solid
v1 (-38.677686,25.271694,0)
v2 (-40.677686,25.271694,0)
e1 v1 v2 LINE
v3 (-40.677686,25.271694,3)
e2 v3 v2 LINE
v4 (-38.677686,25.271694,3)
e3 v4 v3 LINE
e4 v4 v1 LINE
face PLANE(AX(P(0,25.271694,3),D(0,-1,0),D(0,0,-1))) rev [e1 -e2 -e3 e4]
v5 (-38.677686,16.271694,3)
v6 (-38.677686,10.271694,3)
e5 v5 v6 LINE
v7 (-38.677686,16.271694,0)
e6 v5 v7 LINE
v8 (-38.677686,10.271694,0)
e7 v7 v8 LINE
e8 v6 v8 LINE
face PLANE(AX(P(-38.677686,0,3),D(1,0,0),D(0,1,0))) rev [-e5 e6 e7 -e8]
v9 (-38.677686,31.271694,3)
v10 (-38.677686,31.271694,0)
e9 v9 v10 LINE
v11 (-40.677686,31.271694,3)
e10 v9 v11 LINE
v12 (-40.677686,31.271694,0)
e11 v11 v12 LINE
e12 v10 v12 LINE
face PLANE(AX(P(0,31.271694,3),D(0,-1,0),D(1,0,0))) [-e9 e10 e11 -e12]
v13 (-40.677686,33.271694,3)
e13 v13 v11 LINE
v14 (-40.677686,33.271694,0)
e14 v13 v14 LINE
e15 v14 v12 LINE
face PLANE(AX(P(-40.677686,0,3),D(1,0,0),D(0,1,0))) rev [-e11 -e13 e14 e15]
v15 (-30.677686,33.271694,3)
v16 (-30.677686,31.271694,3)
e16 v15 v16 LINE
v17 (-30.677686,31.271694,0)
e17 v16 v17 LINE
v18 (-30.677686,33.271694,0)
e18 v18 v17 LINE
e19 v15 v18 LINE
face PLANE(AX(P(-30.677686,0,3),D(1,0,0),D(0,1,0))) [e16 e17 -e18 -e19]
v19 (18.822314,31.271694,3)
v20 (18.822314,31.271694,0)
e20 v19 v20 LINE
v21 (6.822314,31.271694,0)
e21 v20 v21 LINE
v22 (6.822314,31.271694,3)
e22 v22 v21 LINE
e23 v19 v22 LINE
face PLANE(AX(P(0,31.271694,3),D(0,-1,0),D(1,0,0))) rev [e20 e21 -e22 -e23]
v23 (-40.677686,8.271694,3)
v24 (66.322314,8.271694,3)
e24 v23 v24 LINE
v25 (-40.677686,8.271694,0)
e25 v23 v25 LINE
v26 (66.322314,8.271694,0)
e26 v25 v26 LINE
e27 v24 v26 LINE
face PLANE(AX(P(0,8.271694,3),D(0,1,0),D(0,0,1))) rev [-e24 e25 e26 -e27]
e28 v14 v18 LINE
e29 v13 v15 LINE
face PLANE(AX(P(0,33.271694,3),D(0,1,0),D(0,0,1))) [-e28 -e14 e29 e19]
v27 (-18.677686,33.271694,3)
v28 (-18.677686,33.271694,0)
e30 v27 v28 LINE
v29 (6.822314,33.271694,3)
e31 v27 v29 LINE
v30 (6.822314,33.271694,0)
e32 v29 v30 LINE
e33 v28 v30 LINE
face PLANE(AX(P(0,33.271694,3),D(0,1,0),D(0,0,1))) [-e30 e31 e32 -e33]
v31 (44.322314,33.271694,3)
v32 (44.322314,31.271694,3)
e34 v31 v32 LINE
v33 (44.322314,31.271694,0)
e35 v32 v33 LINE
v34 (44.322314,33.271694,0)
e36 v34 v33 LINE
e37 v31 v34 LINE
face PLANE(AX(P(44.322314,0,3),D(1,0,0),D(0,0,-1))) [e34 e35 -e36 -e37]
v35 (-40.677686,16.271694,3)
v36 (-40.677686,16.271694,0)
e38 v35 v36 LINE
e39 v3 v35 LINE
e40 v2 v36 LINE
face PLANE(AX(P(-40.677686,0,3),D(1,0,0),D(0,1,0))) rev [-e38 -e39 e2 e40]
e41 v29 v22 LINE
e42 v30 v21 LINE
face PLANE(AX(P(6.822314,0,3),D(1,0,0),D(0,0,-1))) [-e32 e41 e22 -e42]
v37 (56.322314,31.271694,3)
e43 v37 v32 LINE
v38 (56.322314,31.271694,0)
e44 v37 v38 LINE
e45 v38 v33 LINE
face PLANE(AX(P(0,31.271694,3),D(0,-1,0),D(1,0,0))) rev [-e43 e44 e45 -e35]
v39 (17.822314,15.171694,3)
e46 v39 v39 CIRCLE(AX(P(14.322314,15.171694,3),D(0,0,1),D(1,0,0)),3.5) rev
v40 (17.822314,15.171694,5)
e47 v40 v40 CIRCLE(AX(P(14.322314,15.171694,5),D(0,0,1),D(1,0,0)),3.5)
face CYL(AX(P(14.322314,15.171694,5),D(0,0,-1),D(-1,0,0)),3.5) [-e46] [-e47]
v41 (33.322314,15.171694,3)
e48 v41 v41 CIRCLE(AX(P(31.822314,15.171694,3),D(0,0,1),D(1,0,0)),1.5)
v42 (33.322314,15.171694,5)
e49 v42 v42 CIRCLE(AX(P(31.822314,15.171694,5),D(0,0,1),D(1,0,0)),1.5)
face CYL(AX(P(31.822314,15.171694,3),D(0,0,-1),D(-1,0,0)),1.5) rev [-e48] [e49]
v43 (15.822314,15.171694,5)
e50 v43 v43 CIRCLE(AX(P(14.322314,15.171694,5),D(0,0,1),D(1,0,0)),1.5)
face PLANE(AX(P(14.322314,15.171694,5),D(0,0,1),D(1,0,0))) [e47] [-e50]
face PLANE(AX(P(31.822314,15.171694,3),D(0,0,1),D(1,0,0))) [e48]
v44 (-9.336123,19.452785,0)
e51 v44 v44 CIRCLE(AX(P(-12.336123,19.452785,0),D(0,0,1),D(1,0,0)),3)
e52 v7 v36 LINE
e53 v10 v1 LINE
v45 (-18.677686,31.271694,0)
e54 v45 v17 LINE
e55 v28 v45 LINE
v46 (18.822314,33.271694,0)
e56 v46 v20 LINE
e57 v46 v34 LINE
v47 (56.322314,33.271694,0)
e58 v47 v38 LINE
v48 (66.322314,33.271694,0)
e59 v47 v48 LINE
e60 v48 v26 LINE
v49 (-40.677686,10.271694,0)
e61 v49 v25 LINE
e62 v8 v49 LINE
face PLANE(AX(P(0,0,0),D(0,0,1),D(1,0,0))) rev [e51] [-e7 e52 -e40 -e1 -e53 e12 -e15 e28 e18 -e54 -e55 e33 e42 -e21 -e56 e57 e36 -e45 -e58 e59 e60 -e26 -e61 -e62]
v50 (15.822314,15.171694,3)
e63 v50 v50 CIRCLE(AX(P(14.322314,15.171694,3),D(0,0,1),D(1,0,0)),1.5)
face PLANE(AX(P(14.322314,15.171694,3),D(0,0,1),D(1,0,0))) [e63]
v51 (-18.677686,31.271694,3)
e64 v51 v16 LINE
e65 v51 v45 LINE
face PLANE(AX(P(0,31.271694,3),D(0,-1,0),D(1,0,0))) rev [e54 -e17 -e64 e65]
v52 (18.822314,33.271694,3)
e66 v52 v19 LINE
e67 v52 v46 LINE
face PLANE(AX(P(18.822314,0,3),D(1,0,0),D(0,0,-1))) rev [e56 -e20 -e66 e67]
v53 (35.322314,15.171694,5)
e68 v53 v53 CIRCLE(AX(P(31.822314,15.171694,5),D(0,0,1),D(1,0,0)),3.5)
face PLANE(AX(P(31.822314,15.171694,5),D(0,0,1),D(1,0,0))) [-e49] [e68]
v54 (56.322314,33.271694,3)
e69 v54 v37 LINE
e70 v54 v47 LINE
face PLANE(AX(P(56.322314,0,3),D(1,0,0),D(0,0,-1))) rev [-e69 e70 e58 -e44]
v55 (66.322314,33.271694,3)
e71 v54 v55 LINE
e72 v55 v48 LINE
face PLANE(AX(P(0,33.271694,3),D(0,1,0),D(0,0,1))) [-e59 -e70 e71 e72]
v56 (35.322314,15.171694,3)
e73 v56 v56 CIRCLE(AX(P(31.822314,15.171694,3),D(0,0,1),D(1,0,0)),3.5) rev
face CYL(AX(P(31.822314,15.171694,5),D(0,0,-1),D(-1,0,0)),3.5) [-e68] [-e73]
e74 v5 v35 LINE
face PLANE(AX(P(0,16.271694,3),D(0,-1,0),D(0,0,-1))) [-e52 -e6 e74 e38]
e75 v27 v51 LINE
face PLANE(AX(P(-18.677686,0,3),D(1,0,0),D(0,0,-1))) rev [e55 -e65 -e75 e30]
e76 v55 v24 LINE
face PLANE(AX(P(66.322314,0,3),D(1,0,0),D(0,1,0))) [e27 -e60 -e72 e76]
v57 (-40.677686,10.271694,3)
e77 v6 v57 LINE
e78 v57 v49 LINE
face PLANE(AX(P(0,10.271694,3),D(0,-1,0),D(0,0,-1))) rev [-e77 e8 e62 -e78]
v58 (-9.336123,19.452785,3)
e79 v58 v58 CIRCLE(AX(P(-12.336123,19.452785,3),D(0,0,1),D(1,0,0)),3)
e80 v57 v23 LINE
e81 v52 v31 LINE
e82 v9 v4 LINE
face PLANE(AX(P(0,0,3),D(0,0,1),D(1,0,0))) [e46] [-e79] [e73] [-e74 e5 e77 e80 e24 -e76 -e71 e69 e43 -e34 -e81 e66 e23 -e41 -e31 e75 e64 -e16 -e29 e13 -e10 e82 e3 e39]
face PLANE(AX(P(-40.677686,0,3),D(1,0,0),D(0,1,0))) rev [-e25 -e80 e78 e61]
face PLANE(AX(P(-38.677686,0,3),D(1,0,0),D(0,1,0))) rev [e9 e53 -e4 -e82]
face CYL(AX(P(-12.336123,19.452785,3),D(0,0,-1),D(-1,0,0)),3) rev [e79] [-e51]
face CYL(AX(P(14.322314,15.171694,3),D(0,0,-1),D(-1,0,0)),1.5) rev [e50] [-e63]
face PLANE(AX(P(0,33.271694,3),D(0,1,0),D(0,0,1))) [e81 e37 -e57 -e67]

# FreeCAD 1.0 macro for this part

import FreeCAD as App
import Part
import Sketcher
from FreeCAD import Vector


def add_polygon(sketch, points):
    """Adds a closed chain of lines whose ends are joined by coincident constraints."""
    first, n = sketch.GeometryCount, len(points)
    for a, b in zip(points, points[1:] + points[:1]):
        sketch.addGeometry(Part.LineSegment(App.Vector(*a, 0), App.Vector(*b, 0)), False)
    for i in range(n):
        sketch.addConstraint(Sketcher.Constraint("Coincident", first + i, 2, first + (i + 1) % n, 1))

doc = App.newDocument("Part")
body = doc.addObject("PartDesign::Body", "Body")

sketch1 = body.newObject("Sketcher::SketchObject", "Sketch")
sketch1.AttachmentSupport = (doc.getObject("XY_Plane"), [""])
sketch1.MapMode = "FlatFace"
add_polygon(sketch1, [(-30.7, 33.3), (-40.7, 33.3), (-40.7, 31.3), (-38.7, 31.3), (-38.7, 25.3), (-40.7, 25.3), (-40.7, 16.3), (-38.7, 16.3), (-38.7, 10.3), (-40.7, 10.3), (-40.7, 8.3), (66.3, 8.3), (66.3, 33.3), (56.3, 33.3), (56.3, 31.3), (44.3, 31.3), (44.3, 33.3), (18.8, 33.3), (18.8, 31.3), (6.8, 31.3), (6.8, 33.3), (-18.7, 33.3), (-18.7, 31.3), (-30.7, 31.3)])
sketch1.addGeometry(Part.Circle(Vector(14.3, 15.2, 0), Vector(0, 0, 1), 1.5), False)
sketch1.addGeometry(Part.Circle(Vector(31.8, 15.2, 0), Vector(0, 0, 1), 1.5), False)
sketch1.addGeometry(Part.Circle(Vector(-12.3, 19.5, 0), Vector(0, 0, 1), 3), False)
sketch1.addConstraint(Sketcher.Constraint("Horizontal", 0))
sketch1.addConstraint(Sketcher.Constraint("Vertical", 1))
sketch1.addConstraint(Sketcher.Constraint("Horizontal", 2))
sketch1.addConstraint(Sketcher.Constraint("Vertical", 3))
sketch1.addConstraint(Sketcher.Constraint("Horizontal", 4))
sketch1.addConstraint(Sketcher.Constraint("Vertical", 5))
sketch1.addConstraint(Sketcher.Constraint("Horizontal", 6))
sketch1.addConstraint(Sketcher.Constraint("Vertical", 7))
sketch1.addConstraint(Sketcher.Constraint("Horizontal", 8))
sketch1.addConstraint(Sketcher.Constraint("Vertical", 9))
sketch1.addConstraint(Sketcher.Constraint("Horizontal", 10))
sketch1.addConstraint(Sketcher.Constraint("Vertical", 11))
sketch1.addConstraint(Sketcher.Constraint("Horizontal", 12))
sketch1.addConstraint(Sketcher.Constraint("Vertical", 13))
sketch1.addConstraint(Sketcher.Constraint("Horizontal", 14))
sketch1.addConstraint(Sketcher.Constraint("Vertical", 15))
sketch1.addConstraint(Sketcher.Constraint("Horizontal", 16))
sketch1.addConstraint(Sketcher.Constraint("Vertical", 17))
sketch1.addConstraint(Sketcher.Constraint("Horizontal", 18))
sketch1.addConstraint(Sketcher.Constraint("Vertical", 19))
sketch1.addConstraint(Sketcher.Constraint("Horizontal", 20))
sketch1.addConstraint(Sketcher.Constraint("Vertical", 21))
sketch1.addConstraint(Sketcher.Constraint("Horizontal", 22))
sketch1.addConstraint(Sketcher.Constraint("Vertical", 23))
sketch1.addConstraint(Sketcher.Constraint("Equal", 24, 25))
sketch1.addConstraint(Sketcher.Constraint("Horizontal", 24, 3, 25, 3))
sketch1.addConstraint(Sketcher.Constraint("Horizontal", 0, 2, 11, 2))
sketch1.addConstraint(Sketcher.Constraint("Horizontal", 2, 2, 13, 2))
sketch1.addConstraint(Sketcher.Constraint("Horizontal", 12, 2, 15, 2))
sketch1.addConstraint(Sketcher.Constraint("Horizontal", 14, 2, 17, 2))
sketch1.addConstraint(Sketcher.Constraint("Horizontal", 16, 2, 19, 2))
sketch1.addConstraint(Sketcher.Constraint("Horizontal", 18, 2, 21, 2))
sketch1.addConstraint(Sketcher.Constraint("Vertical", 1, 2, 4, 2))
sketch1.addConstraint(Sketcher.Constraint("Vertical", 3, 2, 6, 2))
sketch1.addConstraint(Sketcher.Constraint("Vertical", 5, 2, 8, 2))
sketch1.addConstraint(Sketcher.Constraint("Equal", 0, 12))
sketch1.addConstraint(Sketcher.Constraint("Equal", 14, 18))
sketch1.addConstraint(Sketcher.Constraint("Equal", 16, 20))
sketch1.addConstraint(Sketcher.Constraint("Equal", 18, 22))
sketch1.addConstraint(Sketcher.Constraint("Equal", 8, 1))
sketch1.addConstraint(Sketcher.Constraint("Equal", 3, 7))
sketch1.addConstraint(Sketcher.Constraint("Equal", 1, 9))
sketch1.addConstraint(Sketcher.Constraint("Diameter", 24, 3.0))
sketch1.addConstraint(Sketcher.Constraint("Diameter", 26, 6.0))
sketch1.addConstraint(Sketcher.Constraint("DistanceX", 0, 2, 0, 1, 10.0))
sketch1.addConstraint(Sketcher.Constraint("DistanceX", 2, 1, 2, 2, 2.0))
sketch1.addConstraint(Sketcher.Constraint("DistanceX", 10, 1, 10, 2, 107.0))
sketch1.addConstraint(Sketcher.Constraint("DistanceX", 14, 2, 14, 1, 12.0))
sketch1.addConstraint(Sketcher.Constraint("DistanceY", 3, 2, 3, 1, 6.0))
sketch1.addConstraint(Sketcher.Constraint("DistanceY", 5, 2, 5, 1, 9.0))
sketch1.addConstraint(Sketcher.Constraint("DistanceX", 0, 2, 24, 3, 55.0))
sketch1.addConstraint(Sketcher.Constraint("DistanceX", 16, 2, 25, 3, 13.0))
sketch1.addConstraint(Sketcher.Constraint("DistanceY", 24, 3, 0, 2, 18.1))
sketch1.addConstraint(Sketcher.Constraint("DistanceY", 24, 3, 26, 3, 4.28109))
sketch1.addConstraint(Sketcher.Constraint("DistanceX", -1, 1, 24, 3, 14.322314))
sketch1.addConstraint(Sketcher.Constraint("DistanceY", -1, 1, 24, 3, 15.171694))
sketch1.addConstraint(Sketcher.Constraint("DistanceX", 26, 3, -1, 1, 12.336123))
pad1 = body.newObject("PartDesign::Pad", "Pad")
pad1.Profile = sketch1
pad1.Length = 3

sketch2 = body.newObject("Sketcher::SketchObject", "Sketch001")
sketch2.AttachmentSupport = (doc.getObject("XY_Plane"), [""])
sketch2.MapMode = "FlatFace"
sketch2.addGeometry(Part.Circle(Vector(14.3, 15.2, 0), Vector(0, 0, 1), 3.5), False)
sketch2.addGeometry(Part.Circle(Vector(14.3, 15.2, 0), Vector(0, 0, 1), 1.5), False)
sketch2.addGeometry(Part.Circle(Vector(31.8, 15.2, 0), Vector(0, 0, 1), 3.5), False)
sketch2.addGeometry(Part.Circle(Vector(31.8, 15.2, 0), Vector(0, 0, 1), 1.5), False)
sketch2.addConstraint(Sketcher.Constraint("Coincident", 1, 3, 0, 3))
sketch2.addConstraint(Sketcher.Constraint("Coincident", 3, 3, 2, 3))
sketch2.addConstraint(Sketcher.Constraint("Equal", 0, 2))
sketch2.addConstraint(Sketcher.Constraint("Equal", 1, 3))
sketch2.addConstraint(Sketcher.Constraint("Horizontal", 1, 3, 2, 3))
sketch2.addConstraint(Sketcher.Constraint("Diameter", 0, 7.0))
sketch2.addConstraint(Sketcher.Constraint("Diameter", 1, 3.0))
sketch2.addConstraint(Sketcher.Constraint("DistanceX", 0, 3, 2, 3, 17.5))
sketch2.addConstraint(Sketcher.Constraint("DistanceX", -1, 1, 0, 3, 14.322314))
sketch2.addConstraint(Sketcher.Constraint("DistanceY", -1, 1, 0, 3, 15.171694))
pad2 = body.newObject("PartDesign::Pad", "Pad001")
pad2.Profile = sketch2
pad2.Length = 5

sketch3 = body.newObject("Sketcher::SketchObject", "Sketch002")
sketch3.AttachmentSupport = (doc.getObject("XY_Plane"), [""])
sketch3.MapMode = "FlatFace"
sketch3.addGeometry(Part.Circle(Vector(14.3, 15.2, 0), Vector(0, 0, 1), 1.5), False)
sketch3.addGeometry(Part.Circle(Vector(31.8, 15.2, 0), Vector(0, 0, 1), 1.5), False)
sketch3.addConstraint(Sketcher.Constraint("Equal", 0, 1))
sketch3.addConstraint(Sketcher.Constraint("Horizontal", 0, 3, 1, 3))
sketch3.addConstraint(Sketcher.Constraint("Diameter", 0, 3.0))
sketch3.addConstraint(Sketcher.Constraint("DistanceX", 0, 3, 1, 3, 17.5))
sketch3.addConstraint(Sketcher.Constraint("DistanceX", -1, 1, 0, 3, 14.322314))
sketch3.addConstraint(Sketcher.Constraint("DistanceY", -1, 1, 0, 3, 15.171694))
pad3 = body.newObject("PartDesign::Pad", "Pad002")
pad3.Profile = sketch3
pad3.Length = 3

doc.recompute()
